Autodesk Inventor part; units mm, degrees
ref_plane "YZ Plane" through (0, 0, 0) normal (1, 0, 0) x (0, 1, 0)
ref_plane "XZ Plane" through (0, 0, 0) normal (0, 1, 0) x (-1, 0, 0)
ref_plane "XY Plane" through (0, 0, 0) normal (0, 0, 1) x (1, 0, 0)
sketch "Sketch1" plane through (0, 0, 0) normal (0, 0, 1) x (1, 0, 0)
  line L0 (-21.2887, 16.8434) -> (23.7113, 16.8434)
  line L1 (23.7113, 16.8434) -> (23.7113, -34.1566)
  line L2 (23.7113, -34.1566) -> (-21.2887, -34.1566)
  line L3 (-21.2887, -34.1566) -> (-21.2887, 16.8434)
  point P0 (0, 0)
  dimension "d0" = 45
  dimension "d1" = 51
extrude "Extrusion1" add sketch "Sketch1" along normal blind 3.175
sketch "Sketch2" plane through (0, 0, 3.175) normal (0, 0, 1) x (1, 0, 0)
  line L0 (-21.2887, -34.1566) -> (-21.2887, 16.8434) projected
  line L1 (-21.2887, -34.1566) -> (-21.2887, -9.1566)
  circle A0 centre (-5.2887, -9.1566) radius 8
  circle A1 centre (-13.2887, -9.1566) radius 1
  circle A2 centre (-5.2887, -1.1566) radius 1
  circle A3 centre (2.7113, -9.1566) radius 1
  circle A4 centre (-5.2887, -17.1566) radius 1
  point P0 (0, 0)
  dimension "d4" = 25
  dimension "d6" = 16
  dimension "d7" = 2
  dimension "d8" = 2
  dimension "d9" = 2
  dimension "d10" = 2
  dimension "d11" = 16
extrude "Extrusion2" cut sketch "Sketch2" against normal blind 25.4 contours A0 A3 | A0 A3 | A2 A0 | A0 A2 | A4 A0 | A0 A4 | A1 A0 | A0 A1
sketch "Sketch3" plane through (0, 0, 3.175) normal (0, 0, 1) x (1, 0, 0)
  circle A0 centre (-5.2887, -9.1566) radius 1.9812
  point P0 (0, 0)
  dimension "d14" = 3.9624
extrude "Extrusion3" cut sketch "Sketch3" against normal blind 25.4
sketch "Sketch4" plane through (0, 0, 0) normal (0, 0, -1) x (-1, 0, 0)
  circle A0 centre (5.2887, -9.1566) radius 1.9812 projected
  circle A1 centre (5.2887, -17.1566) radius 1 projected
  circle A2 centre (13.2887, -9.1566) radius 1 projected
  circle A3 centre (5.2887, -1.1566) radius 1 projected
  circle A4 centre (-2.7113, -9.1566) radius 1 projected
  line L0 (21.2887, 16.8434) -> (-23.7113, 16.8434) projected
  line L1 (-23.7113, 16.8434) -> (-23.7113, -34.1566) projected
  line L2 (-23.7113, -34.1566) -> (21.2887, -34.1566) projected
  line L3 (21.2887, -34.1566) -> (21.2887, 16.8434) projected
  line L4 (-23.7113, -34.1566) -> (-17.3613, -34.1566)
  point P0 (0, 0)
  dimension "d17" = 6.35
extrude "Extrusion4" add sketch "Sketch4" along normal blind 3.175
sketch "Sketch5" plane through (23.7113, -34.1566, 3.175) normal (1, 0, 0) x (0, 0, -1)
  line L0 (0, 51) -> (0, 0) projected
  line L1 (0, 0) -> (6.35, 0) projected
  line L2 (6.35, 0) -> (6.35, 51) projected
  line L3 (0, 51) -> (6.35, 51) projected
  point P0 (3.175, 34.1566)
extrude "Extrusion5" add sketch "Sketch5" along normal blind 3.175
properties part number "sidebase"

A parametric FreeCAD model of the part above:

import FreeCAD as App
import Part
import Sketcher

V = App.Vector
Q = App.Units.Quantity

doc = App.newDocument("Part")
body = doc.addObject("PartDesign::Body", "Body")

sketch1 = doc.addObject("Sketcher::SketchObject", "Sketch")
body.addObject(sketch1)
sketch1.AttachmentSupport = (doc.XY_Plane, [""])
sketch1.MapMode = "FlatFace"
sketch1.addGeometry([
    Part.LineSegment(V(24, 17, 0), V(-21, 17, 0)),
    Part.LineSegment(V(-21, 17, 0), V(-21, -34, 0)),
    Part.LineSegment(V(-21, -34, 0), V(24, -34, 0)),
    Part.LineSegment(V(24, -34, 0), V(24, 17, 0)),
], False)
sketch1.addConstraint([
    Sketcher.Constraint("Coincident", 0, 2, 1, 1),
    Sketcher.Constraint("Coincident", 1, 2, 2, 1),
    Sketcher.Constraint("Coincident", 2, 2, 3, 1),
    Sketcher.Constraint("Coincident", 3, 2, 0, 1),
    Sketcher.Constraint("Horizontal", 0),
    Sketcher.Constraint("Vertical", 1),
    Sketcher.Constraint("Horizontal", 2),
    Sketcher.Constraint("Vertical", 3),
    Sketcher.Constraint("DistanceX", 0, 2, 0, 1, Q("45 mm")),
    Sketcher.Constraint("DistanceY", 1, 2, 1, 1, Q("51 mm")),
    Sketcher.Constraint("DistanceX", 0, 2, -1, 1, Q("21.2887 mm")),
    Sketcher.Constraint("DistanceY", -1, 1, 0, 2, Q("16.8434 mm")),
])
pad1 = doc.addObject("PartDesign::Pad", "Pad")
body.addObject(pad1)
pad1.Profile = sketch1
pad1.Length = Q("0.125 in")

sketch2 = doc.addObject("Sketcher::SketchObject", "Sketch001")
body.addObject(sketch2)
sketch2.AttachmentSupport = (doc.XY_Plane, [""])
sketch2.MapMode = "FlatFace"
sketch2.AttachmentOffset = App.Placement(V(0, 0, 0.125 * 25.4), App.Rotation())
sketch2.addGeometry([
    Part.Circle(V(2.7, -9.2, 0), V(0, 0, 1), 1),
    Part.Circle(V(-5.3, -1.2, 0), V(0, 0, 1), 1),
    Part.Circle(V(-5.3, -17.2, 0), V(0, 0, 1), 1),
    Part.Circle(V(-13.3, -9.2, 0), V(0, 0, 1), 1),
], False)
sketch2.addConstraint([
    Sketcher.Constraint("Equal", 0, 1),
    Sketcher.Constraint("Equal", 1, 2),
    Sketcher.Constraint("Equal", 2, 3),
    Sketcher.Constraint("Horizontal", 0, 3, 3, 3),
    Sketcher.Constraint("Vertical", 1, 3, 2, 3),
    Sketcher.Constraint("Diameter", 0, Q("2 mm")),
    Sketcher.Constraint("DistanceY", 2, 3, 1, 3, Q("16 mm")),
    Sketcher.Constraint("DistanceX", 3, 3, 0, 3, Q("16 mm")),
    Sketcher.Constraint("DistanceY", 0, 3, -1, 1, Q("0.3605 in")),
    Sketcher.Constraint("DistanceX", -1, 1, 0, 3, Q("2.7113 mm")),
    Sketcher.Constraint("DistanceX", 1, 3, -1, 1, Q("5.2887 mm")),
    Sketcher.Constraint("DistanceY", 1, 3, -1, 1, Q("1.1566 mm")),
])
pocket1 = doc.addObject("PartDesign::Pocket", "Pocket")
body.addObject(pocket1)
pocket1.Profile = sketch2
pocket1.Length = Q("1 in")

sketch3 = doc.addObject("Sketcher::SketchObject", "Sketch002")
body.addObject(sketch3)
sketch3.AttachmentSupport = (doc.XY_Plane, [""])
sketch3.MapMode = "FlatFace"
sketch3.AttachmentOffset = App.Placement(V(0, 0, 0.125 * 25.4), App.Rotation())
sketch3.addGeometry(Part.Circle(V(-5.3, -9.2, 0), V(0, 0, 1), 2), False)
sketch3.addConstraint([
    Sketcher.Constraint("Diameter", 0, Q("0.156 in")),
    Sketcher.Constraint("DistanceY", 0, 3, -1, 1, Q("0.3605 in")),
    Sketcher.Constraint("DistanceX", 0, 3, -1, 1, Q("5.2887 mm")),
])
pocket2 = doc.addObject("PartDesign::Pocket", "Pocket001")
body.addObject(pocket2)
pocket2.Profile = sketch3
pocket2.Length = Q("1 in")

sketch4 = doc.addObject("Sketcher::SketchObject", "Sketch003")
body.addObject(sketch4)
sketch4.AttachmentSupport = (doc.XY_Plane, [""])
sketch4.MapMode = "FlatFace"
sketch4.addGeometry([
    Part.LineSegment(V(-21.3, -34.2, 0), V(-21.3, 16.8, 0)),
    Part.LineSegment(V(-21.3, 16.8, 0), V(23.7, 16.8, 0)),
    Part.LineSegment(V(23.7, 16.8, 0), V(23.7, -34.2, 0)),
    Part.LineSegment(V(23.7, -34.2, 0), V(-21.3, -34.2, 0)),
    Part.Circle(V(2.7, -9.2, 0), V(0, 0, 1), 1),
    Part.Circle(V(-5.3, -17.2, 0), V(0, 0, 1), 1),
    Part.Circle(V(-5.3, -9.2, 0), V(0, 0, 1), 2),
    Part.Circle(V(-13.3, -9.2, 0), V(0, 0, 1), 1),
    Part.Circle(V(-5.3, -1.2, 0), V(0, 0, 1), 1),
], False)
sketch4.addConstraint([
    Sketcher.Constraint("Coincident", 0, 2, 1, 1),
    Sketcher.Constraint("Coincident", 1, 2, 2, 1),
    Sketcher.Constraint("Coincident", 2, 2, 3, 1),
    Sketcher.Constraint("Coincident", 3, 2, 0, 1),
    Sketcher.Constraint("Vertical", 0),
    Sketcher.Constraint("Horizontal", 1),
    Sketcher.Constraint("Vertical", 2),
    Sketcher.Constraint("Horizontal", 3),
    Sketcher.Constraint("Equal", 4, 5),
    Sketcher.Constraint("Equal", 5, 7),
    Sketcher.Constraint("Equal", 7, 8),
    Sketcher.Constraint("Horizontal", 4, 3, 6, 3),
    Sketcher.Constraint("Horizontal", 6, 3, 7, 3),
    Sketcher.Constraint("Vertical", 5, 3, 6, 3),
    Sketcher.Constraint("Vertical", 6, 3, 8, 3),
    Sketcher.Constraint("Diameter", 6, Q("0.156 in")),
    Sketcher.Constraint("Diameter", 4, Q("2 mm")),
    Sketcher.Constraint("DistanceX", 1, 1, 1, 2, Q("45 mm")),
    Sketcher.Constraint("DistanceY", 0, 1, 0, 2, Q("51 mm")),
    Sketcher.Constraint("DistanceY", 4, 3, -1, 1, Q("0.3605 in")),
    Sketcher.Constraint("DistanceY", 2, 2, 5, 3, Q("0.6693 in")),
    Sketcher.Constraint("DistanceX", 7, 3, 2, 2, Q("1.4567 in")),
    Sketcher.Constraint("DistanceX", -1, 1, 4, 3, Q("2.7113 mm")),
    Sketcher.Constraint("DistanceX", 5, 3, -1, 1, Q("5.2887 mm")),
    Sketcher.Constraint("DistanceY", 5, 3, -1, 1, Q("17.1566 mm")),
    Sketcher.Constraint("DistanceX", 7, 3, -1, 1, Q("13.2887 mm")),
    Sketcher.Constraint("DistanceY", 8, 3, -1, 1, Q("1.1566 mm")),
])
pad2 = doc.addObject("PartDesign::Pad", "Pad001")
body.addObject(pad2)
pad2.Profile = sketch4
pad2.Length = Q("0.125 in")
pad2.Reversed = True

sketch5 = doc.addObject("Sketcher::SketchObject", "Sketch004")
body.addObject(sketch5)
sketch5.AttachmentSupport = (doc.YZ_Plane, [""])
sketch5.MapMode = "FlatFace"
sketch5.AttachmentOffset = App.Placement(V(0, 0, 23.7113), App.Rotation())
sketch5.addGeometry([
    Part.LineSegment(V(17, -3, 0), V(17, 3, 0)),
    Part.LineSegment(V(17, 3, 0), V(-34, 3, 0)),
    Part.LineSegment(V(-34, 3, 0), V(-34, -3, 0)),
    Part.LineSegment(V(-34, -3, 0), V(17, -3, 0)),
], False)
sketch5.addConstraint([
    Sketcher.Constraint("Coincident", 0, 2, 1, 1),
    Sketcher.Constraint("Coincident", 1, 2, 2, 1),
    Sketcher.Constraint("Coincident", 2, 2, 3, 1),
    Sketcher.Constraint("Coincident", 3, 2, 0, 1),
    Sketcher.Constraint("Vertical", 0),
    Sketcher.Constraint("Horizontal", 1),
    Sketcher.Constraint("Vertical", 2),
    Sketcher.Constraint("Horizontal", 3),
    Sketcher.Constraint("DistanceY", 0, 1, 0, 2, Q("0.25 in")),
    Sketcher.Constraint("DistanceY", -1, 1, 0, 2, Q("0.125 in")),
    Sketcher.Constraint("DistanceX", 1, 2, 1, 1, Q("51 mm")),
    Sketcher.Constraint("DistanceX", -1, 1, 0, 2, Q("16.8434 mm")),
])
pad3 = doc.addObject("PartDesign::Pad", "Pad002")
body.addObject(pad3)
pad3.Profile = sketch5
pad3.Length = Q("0.125 in")

doc.recompute()
